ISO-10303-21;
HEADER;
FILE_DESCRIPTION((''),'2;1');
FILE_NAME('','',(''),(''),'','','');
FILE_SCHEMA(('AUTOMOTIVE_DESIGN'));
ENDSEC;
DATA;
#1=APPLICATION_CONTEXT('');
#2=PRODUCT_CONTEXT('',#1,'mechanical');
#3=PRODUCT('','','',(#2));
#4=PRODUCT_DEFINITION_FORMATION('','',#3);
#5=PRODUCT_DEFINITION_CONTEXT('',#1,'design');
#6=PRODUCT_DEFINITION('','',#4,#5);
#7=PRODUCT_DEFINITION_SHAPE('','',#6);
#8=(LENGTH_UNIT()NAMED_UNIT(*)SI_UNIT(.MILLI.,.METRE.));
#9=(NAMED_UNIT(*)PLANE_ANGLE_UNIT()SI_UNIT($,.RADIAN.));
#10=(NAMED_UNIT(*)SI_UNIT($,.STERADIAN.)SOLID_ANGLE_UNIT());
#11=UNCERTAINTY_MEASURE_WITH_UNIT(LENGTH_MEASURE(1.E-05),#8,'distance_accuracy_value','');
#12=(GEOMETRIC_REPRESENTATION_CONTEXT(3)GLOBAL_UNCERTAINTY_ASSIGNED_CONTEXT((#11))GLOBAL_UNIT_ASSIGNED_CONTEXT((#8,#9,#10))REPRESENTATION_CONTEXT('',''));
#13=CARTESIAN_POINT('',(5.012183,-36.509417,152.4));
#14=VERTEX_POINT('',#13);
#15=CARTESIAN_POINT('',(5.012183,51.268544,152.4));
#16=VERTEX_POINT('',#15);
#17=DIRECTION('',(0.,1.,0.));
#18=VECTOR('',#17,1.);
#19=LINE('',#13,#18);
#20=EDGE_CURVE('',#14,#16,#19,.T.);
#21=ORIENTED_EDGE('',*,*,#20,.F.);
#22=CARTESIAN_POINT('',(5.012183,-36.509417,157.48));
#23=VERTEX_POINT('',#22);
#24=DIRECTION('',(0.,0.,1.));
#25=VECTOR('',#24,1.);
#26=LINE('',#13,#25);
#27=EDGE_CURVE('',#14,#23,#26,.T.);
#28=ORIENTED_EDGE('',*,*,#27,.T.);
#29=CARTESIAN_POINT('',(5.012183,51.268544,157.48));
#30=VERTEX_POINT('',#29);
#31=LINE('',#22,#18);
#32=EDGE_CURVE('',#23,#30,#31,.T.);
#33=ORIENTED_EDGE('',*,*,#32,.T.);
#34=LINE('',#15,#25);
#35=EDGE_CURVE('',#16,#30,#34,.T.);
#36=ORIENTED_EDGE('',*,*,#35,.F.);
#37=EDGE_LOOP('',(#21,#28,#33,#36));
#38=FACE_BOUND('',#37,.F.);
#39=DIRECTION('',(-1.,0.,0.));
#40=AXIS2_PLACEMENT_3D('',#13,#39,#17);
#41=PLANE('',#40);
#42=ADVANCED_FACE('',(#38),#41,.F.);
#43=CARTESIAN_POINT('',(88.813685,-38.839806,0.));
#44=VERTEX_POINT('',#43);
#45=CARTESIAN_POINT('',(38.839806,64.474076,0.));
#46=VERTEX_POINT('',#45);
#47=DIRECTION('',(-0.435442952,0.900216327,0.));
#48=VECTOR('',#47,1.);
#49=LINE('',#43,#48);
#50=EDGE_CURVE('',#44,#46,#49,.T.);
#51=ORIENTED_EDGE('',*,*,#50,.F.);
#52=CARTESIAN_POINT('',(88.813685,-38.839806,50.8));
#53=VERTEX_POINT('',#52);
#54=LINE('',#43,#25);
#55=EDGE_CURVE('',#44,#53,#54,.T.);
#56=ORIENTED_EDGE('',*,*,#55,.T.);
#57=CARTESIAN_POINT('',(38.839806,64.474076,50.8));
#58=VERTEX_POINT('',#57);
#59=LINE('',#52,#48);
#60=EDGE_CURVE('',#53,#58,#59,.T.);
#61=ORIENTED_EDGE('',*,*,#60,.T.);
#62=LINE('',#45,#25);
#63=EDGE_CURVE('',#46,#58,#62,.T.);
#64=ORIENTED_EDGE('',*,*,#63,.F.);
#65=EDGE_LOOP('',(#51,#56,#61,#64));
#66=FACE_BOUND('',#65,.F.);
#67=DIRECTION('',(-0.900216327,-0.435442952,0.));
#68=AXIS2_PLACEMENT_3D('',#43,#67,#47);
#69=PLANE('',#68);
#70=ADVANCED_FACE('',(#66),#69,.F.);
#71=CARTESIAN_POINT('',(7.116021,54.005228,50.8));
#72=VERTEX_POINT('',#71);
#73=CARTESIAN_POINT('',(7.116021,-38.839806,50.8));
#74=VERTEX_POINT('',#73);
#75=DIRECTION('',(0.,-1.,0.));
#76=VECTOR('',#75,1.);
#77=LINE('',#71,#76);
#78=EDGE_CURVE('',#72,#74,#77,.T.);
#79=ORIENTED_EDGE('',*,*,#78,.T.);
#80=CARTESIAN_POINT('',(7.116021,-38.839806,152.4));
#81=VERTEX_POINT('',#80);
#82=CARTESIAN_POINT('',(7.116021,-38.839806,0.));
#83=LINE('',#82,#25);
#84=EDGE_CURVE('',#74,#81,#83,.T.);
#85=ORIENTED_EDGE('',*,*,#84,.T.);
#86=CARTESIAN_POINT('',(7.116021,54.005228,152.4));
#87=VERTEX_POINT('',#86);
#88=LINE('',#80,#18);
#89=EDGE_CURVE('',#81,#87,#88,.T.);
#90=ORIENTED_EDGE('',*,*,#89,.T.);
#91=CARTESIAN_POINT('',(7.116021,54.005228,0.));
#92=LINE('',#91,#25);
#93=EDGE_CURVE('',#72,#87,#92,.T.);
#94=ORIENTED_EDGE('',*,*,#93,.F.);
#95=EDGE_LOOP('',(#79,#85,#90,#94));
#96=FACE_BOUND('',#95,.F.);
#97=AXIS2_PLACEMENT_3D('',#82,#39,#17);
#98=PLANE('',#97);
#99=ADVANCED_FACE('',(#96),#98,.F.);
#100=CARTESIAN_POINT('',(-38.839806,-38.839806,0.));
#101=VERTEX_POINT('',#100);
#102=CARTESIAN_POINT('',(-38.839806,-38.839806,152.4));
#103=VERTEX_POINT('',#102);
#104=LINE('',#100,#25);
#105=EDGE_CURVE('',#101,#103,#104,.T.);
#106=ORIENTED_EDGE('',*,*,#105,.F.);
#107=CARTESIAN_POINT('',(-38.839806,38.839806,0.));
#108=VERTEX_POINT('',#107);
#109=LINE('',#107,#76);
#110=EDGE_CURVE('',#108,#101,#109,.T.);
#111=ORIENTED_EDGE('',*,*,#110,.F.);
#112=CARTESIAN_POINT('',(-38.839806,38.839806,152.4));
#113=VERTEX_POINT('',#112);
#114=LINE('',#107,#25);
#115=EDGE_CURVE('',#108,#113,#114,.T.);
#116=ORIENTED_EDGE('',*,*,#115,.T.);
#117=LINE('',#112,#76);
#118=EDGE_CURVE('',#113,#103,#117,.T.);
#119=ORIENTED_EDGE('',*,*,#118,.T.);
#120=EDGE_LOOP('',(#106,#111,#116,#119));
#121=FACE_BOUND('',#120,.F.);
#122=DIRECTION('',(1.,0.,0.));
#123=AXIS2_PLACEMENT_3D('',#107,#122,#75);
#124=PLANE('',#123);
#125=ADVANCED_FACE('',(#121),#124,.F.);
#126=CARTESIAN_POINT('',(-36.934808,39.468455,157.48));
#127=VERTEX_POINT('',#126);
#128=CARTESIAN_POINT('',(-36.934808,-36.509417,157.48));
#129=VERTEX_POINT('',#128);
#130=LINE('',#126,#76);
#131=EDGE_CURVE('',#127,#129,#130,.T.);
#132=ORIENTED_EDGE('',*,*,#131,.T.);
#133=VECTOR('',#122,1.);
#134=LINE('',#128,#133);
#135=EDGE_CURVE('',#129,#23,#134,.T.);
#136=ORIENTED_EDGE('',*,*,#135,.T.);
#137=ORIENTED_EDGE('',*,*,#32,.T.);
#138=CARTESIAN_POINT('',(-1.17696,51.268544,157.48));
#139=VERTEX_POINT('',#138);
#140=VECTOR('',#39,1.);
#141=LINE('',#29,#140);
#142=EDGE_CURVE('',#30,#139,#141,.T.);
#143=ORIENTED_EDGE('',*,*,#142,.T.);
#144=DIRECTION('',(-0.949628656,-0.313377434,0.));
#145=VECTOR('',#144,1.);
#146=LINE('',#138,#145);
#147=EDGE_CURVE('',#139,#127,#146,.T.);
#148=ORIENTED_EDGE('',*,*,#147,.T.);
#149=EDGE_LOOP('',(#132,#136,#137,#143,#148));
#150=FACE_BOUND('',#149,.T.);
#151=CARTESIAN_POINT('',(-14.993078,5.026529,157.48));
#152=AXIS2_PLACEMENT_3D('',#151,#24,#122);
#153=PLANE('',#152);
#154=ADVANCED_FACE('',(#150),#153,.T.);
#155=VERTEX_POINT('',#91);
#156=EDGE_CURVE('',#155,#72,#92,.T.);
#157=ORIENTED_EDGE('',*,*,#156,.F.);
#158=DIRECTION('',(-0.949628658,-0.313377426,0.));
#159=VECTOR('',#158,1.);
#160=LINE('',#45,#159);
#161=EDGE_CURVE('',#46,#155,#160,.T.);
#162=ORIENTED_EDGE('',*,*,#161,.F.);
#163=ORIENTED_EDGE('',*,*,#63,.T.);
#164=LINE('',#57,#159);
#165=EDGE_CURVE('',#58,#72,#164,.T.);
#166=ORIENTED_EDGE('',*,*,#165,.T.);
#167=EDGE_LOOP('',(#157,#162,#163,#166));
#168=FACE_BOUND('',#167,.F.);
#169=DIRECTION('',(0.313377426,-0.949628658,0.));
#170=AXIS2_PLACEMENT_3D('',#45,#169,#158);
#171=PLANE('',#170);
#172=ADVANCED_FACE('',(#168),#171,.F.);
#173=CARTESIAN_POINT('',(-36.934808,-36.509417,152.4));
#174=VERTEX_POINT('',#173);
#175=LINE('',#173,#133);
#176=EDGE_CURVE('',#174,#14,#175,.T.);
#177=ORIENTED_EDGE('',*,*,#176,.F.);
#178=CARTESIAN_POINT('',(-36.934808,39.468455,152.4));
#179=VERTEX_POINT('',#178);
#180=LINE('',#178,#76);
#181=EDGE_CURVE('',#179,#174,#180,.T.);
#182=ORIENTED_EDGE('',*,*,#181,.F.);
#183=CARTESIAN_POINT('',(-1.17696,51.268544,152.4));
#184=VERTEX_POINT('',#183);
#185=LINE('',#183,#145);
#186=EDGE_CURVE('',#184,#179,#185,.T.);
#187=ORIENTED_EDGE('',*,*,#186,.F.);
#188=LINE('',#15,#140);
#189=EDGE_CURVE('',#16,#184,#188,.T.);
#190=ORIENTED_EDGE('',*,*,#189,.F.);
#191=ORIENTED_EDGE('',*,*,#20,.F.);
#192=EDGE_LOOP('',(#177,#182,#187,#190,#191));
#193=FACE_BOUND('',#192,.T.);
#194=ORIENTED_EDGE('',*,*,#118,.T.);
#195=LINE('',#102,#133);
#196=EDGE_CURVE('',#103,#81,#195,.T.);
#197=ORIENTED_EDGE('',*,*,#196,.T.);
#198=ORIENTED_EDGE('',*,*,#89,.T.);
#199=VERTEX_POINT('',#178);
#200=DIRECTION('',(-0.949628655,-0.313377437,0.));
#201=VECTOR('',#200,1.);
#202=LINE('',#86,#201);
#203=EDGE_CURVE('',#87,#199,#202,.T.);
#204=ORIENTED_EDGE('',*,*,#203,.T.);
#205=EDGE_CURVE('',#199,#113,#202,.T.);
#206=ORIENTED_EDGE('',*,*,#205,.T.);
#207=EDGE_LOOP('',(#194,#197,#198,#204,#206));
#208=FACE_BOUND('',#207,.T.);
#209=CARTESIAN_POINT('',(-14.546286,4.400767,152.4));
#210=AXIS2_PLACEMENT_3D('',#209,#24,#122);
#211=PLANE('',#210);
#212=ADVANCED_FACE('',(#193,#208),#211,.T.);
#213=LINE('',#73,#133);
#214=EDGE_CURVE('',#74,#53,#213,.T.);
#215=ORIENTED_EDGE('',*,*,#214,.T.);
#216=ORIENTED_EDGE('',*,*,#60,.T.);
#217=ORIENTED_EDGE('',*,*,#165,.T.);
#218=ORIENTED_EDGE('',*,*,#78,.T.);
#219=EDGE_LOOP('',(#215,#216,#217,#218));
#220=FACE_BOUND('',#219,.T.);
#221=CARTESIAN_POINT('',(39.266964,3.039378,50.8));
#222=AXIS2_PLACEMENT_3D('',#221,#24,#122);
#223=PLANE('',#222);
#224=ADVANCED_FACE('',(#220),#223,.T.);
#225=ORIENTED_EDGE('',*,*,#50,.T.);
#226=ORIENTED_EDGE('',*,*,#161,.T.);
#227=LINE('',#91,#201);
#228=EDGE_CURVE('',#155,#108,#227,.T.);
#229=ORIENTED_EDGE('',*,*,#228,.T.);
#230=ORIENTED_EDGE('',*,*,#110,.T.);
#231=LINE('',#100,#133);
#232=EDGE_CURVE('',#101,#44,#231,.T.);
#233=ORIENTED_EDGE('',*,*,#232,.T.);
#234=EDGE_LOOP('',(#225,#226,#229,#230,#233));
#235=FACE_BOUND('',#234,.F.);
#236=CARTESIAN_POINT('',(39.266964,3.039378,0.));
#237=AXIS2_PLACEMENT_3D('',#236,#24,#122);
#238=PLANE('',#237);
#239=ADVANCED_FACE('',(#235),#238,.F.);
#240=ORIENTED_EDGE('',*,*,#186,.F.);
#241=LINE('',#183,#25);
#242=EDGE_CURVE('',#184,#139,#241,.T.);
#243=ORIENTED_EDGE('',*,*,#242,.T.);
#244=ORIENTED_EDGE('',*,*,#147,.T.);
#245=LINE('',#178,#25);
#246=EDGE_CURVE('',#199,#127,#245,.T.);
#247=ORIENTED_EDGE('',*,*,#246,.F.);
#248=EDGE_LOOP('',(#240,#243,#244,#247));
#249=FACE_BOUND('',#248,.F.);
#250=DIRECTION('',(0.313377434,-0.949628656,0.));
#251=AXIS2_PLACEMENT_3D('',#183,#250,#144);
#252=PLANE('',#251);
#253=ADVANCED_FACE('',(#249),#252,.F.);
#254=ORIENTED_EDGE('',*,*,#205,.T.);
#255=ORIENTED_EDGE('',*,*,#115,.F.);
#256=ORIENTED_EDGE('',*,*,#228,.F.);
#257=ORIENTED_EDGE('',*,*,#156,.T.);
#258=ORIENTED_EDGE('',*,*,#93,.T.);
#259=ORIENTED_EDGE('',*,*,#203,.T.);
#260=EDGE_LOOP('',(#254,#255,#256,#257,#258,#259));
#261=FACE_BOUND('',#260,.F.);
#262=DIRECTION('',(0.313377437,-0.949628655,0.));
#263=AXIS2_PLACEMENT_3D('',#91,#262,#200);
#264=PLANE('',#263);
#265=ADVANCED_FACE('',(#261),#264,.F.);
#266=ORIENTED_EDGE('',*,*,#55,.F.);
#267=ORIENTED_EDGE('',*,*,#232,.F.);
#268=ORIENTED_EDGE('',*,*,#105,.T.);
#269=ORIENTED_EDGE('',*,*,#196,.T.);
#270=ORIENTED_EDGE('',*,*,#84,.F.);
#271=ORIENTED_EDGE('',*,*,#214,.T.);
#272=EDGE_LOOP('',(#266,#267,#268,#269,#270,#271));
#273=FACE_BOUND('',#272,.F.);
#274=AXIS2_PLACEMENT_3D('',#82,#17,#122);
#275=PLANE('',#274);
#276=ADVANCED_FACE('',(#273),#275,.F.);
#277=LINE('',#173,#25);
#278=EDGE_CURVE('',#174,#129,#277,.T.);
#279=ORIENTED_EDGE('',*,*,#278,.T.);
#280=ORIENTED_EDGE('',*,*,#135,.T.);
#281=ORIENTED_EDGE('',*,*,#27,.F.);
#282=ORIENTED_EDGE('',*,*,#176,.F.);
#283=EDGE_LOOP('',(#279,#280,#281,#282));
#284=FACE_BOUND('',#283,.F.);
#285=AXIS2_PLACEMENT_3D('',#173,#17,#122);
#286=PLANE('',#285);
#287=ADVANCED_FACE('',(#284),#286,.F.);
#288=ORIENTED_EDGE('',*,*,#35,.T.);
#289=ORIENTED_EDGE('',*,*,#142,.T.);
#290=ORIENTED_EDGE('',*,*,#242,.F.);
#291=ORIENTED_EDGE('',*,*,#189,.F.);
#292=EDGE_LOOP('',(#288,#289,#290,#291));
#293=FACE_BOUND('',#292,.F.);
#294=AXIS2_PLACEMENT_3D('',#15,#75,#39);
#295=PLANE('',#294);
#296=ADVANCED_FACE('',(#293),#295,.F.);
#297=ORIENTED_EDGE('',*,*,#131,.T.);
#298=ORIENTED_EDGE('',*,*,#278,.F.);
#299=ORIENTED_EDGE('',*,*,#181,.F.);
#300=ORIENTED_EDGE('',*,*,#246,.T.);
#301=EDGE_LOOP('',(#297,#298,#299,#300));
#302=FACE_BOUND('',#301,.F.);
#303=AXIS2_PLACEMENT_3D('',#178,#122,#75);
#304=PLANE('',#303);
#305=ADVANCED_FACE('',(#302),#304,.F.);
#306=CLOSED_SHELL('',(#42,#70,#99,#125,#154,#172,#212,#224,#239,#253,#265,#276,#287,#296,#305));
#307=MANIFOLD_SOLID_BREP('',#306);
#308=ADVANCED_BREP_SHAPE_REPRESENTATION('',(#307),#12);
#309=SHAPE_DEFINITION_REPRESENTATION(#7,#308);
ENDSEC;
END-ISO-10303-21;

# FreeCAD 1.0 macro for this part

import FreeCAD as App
import Part
import Sketcher
from FreeCAD import Vector
Q = App.Units.Quantity

doc = App.newDocument("Part")
params = doc.addObject("Spreadsheet::Sheet", "Params")
for row, (alias, value) in enumerate([
    ("pad1_length", "6 in"),
    ("pad2_length", "2 in"),
    ("pad3_length", "0.2 in"),
], start=1):
    params.set(f"A{row}", alias)
    params.set(f"B{row}", "=" + value)
    params.setAlias(f"B{row}", alias)

body = doc.addObject("PartDesign::Body", "Body")

sketch1 = doc.addObject("Sketcher::SketchObject", "Sketch")
body.addObject(sketch1)
sketch1.AttachmentSupport = (doc.XY_Plane, [""])
sketch1.MapMode = "FlatFace"
sketch1.addGeometry([
    Part.LineSegment(Vector(-38.839806, 38.839806, 0), Vector(-38.839806, -38.839806, 0)),
    Part.LineSegment(Vector(-38.839806, -38.839806, 0), Vector(7.116021, -38.839806, 0)),
    Part.LineSegment(Vector(7.116021, -38.839806, 0), Vector(7.116021, 54.005228, 0)),
    Part.LineSegment(Vector(7.116021, 54.005228, 0), Vector(-38.839806, 38.839806, 0)),
], False)
sketch1.addConstraint([
    Sketcher.Constraint("Coincident", 0, 2, 1, 1),
    Sketcher.Constraint("Coincident", 1, 2, 2, 1),
    Sketcher.Constraint("Coincident", 2, 2, 3, 1),
    Sketcher.Constraint("Coincident", 3, 2, 0, 1),
    Sketcher.Constraint("Vertical", 0),
    Sketcher.Constraint("Horizontal", 1),
    Sketcher.Constraint("Vertical", 2),
    Sketcher.Constraint("Distance", 3, Q("48.393471 mm")),
    Sketcher.Constraint("DistanceX", 1, 1, 1, 2, Q("45.955827 mm")),
    Sketcher.Constraint("DistanceY", 0, 2, 0, 1, Q("77.679612 mm")),
    Sketcher.Constraint("DistanceX", -1, 1, 1, 2, Q("7.116021 mm")),
    Sketcher.Constraint("DistanceY", -1, 1, 2, 2, Q("54.005228 mm")),
])
pad1 = doc.addObject("PartDesign::Pad", "Pad")
body.addObject(pad1)
pad1.Profile = sketch1
pad1.setExpression("Length", "Params.pad1_length")

sketch2 = doc.addObject("Sketcher::SketchObject", "Sketch001")
body.addObject(sketch2)
sketch2.AttachmentSupport = (doc.XY_Plane, [""])
sketch2.MapMode = "FlatFace"
sketch2.addGeometry([
    Part.LineSegment(Vector(7.116021, 54.005228, 0), Vector(7.116021, -38.839806, 0)),
    Part.LineSegment(Vector(7.116021, -38.839806, 0), Vector(88.813685, -38.839806, 0)),
    Part.LineSegment(Vector(88.813685, -38.839806, 0), Vector(38.839806, 64.474076, 0)),
    Part.LineSegment(Vector(38.839806, 64.474076, 0), Vector(7.116021, 54.005228, 0)),
], False)
sketch2.addConstraint([
    Sketcher.Constraint("Coincident", 0, 2, 1, 1),
    Sketcher.Constraint("Coincident", 1, 2, 2, 1),
    Sketcher.Constraint("Coincident", 2, 2, 3, 1),
    Sketcher.Constraint("Coincident", 3, 2, 0, 1),
    Sketcher.Constraint("Vertical", 0),
    Sketcher.Constraint("Horizontal", 1),
    Sketcher.Constraint("DistanceX", 1, 1, 1, 2, Q("81.697664 mm")),
    Sketcher.Constraint("DistanceY", 0, 2, 0, 1, Q("92.845034 mm")),
    Sketcher.Constraint("DistanceX", -1, 1, 0, 2, Q("7.116021 mm")),
    Sketcher.Constraint("DistanceY", -1, 1, 3, 2, Q("54.005228 mm")),
    Sketcher.Constraint("DistanceX", 2, 2, 1, 2, Q("49.973879 mm")),
    Sketcher.Constraint("Distance", 2, Q("114.765617 mm")),
])
pad2 = doc.addObject("PartDesign::Pad", "Pad001")
body.addObject(pad2)
pad2.Profile = sketch2
pad2.setExpression("Length", "Params.pad2_length")

sketch3 = doc.addObject("Sketcher::SketchObject", "Sketch002")
body.addObject(sketch3)
sketch3.AttachmentSupport = (doc.XY_Plane, [""])
sketch3.MapMode = "FlatFace"
sketch3.AttachmentOffset = App.Placement(Vector(0, 0, 6 * 25.4), App.Rotation())
sketch3.addGeometry([
    Part.LineSegment(Vector(5.012183, -36.509417, 0), Vector(5.012183, 51.268544, 0)),
    Part.LineSegment(Vector(5.012183, 51.268544, 0), Vector(-1.17696, 51.268544, 0)),
    Part.LineSegment(Vector(-1.17696, 51.268544, 0), Vector(-36.934808, 39.468455, 0)),
    Part.LineSegment(Vector(-36.934808, 39.468455, 0), Vector(-36.934808, -36.509417, 0)),
    Part.LineSegment(Vector(-36.934808, -36.509417, 0), Vector(5.012183, -36.509417, 0)),
], False)
sketch3.addConstraint([
    Sketcher.Constraint("Coincident", 0, 2, 1, 1),
    Sketcher.Constraint("Coincident", 1, 2, 2, 1),
    Sketcher.Constraint("Coincident", 2, 2, 3, 1),
    Sketcher.Constraint("Coincident", 3, 2, 4, 1),
    Sketcher.Constraint("Coincident", 4, 2, 0, 1),
    Sketcher.Constraint("Vertical", 0),
    Sketcher.Constraint("Horizontal", 1),
    Sketcher.Constraint("Vertical", 3),
    Sketcher.Constraint("Horizontal", 4),
    Sketcher.Constraint("DistanceX", 4, 1, 4, 2, Q("41.946991 mm")),
    Sketcher.Constraint("DistanceY", 0, 1, 0, 2, Q("87.777961 mm")),
    Sketcher.Constraint("DistanceY", 3, 2, 3, 1, Q("75.977872 mm")),
    Sketcher.Constraint("Distance", 2, Q("37.654559 mm")),
    Sketcher.Constraint("DistanceX", 1, 2, -1, 1, Q("1.17696 mm")),
    Sketcher.Constraint("DistanceY", -1, 1, 0, 2, Q("51.268544 mm")),
])
pad3 = doc.addObject("PartDesign::Pad", "Pad002")
body.addObject(pad3)
pad3.Profile = sketch3
pad3.setExpression("Length", "Params.pad3_length")

doc.recompute()
